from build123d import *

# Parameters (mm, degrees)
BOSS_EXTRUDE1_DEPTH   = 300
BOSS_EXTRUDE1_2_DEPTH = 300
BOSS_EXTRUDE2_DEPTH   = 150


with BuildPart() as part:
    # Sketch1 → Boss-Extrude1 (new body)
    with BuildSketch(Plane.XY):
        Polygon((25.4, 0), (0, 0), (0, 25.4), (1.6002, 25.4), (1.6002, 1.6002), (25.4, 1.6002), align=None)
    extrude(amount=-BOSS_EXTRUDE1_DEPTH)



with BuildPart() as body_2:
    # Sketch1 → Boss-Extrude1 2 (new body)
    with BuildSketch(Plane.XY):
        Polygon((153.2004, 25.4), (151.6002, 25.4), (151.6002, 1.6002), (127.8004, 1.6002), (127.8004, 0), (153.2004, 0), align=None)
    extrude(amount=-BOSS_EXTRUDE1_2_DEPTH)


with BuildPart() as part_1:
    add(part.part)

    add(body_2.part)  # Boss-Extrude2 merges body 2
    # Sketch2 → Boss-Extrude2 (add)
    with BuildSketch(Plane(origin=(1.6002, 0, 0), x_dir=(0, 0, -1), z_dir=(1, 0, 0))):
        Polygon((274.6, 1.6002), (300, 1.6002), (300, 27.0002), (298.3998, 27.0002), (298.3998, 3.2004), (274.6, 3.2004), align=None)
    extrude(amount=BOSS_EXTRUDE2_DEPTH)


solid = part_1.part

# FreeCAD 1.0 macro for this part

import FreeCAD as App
import Part
import Sketcher
from FreeCAD import Vector
Q = App.Units.Quantity

doc = App.newDocument("Part")
params = doc.addObject("Spreadsheet::Sheet", "Params")
for row, (alias, value) in enumerate([
    ("sketch1_width", "1 in"),
    ("sketch1_width2", "0.937 in"),
    ("pad1_length", "300 mm"),
    ("sketch2_width", "1 in"),
    ("sketch2_width2", "0.063 in"),
    ("pad2_length", "300 mm"),
    ("sketch3_width", "1 in"),
    ("sketch3_width2", "0.937 in"),
    ("pad3_length", "150 mm"),
], start=1):
    params.set(f"A{row}", alias)
    params.set(f"B{row}", "=" + value)
    params.setAlias(f"B{row}", alias)

body = doc.addObject("PartDesign::Body", "Body")

# Sketch on XY plane
sketch1 = body.newObject("Sketcher::SketchObject", "Sketch")
sketch1.AttachmentSupport = (doc.getObject("XY_Plane"), [""])
sketch1.MapMode = "FlatFace"
sketch1.addGeometry([
    Part.LineSegment(Vector(0, 0, 0), Vector(25.4, 0, 0)),  # 0
    Part.LineSegment(Vector(25.4, 0, 0), Vector(25.4, 1.6, 0)),  # 1
    Part.LineSegment(Vector(25.4, 1.6, 0), Vector(1.6, 1.6, 0)),  # 2
    Part.LineSegment(Vector(1.6, 1.6, 0), Vector(1.6, 25.4, 0)),  # 3
    Part.LineSegment(Vector(1.6, 25.4, 0), Vector(0, 25.4, 0)),  # 4
    Part.LineSegment(Vector(0, 25.4, 0), Vector(0, 0, 0)),  # 5
], False)
sketch1.addConstraint([
    Sketcher.Constraint("Coincident", 0, 2, 1, 1),
    Sketcher.Constraint("Coincident", 1, 2, 2, 1),
    Sketcher.Constraint("Coincident", 2, 2, 3, 1),
    Sketcher.Constraint("Coincident", 3, 2, 4, 1),
    Sketcher.Constraint("Coincident", 4, 2, 5, 1),
    Sketcher.Constraint("Coincident", 5, 2, 0, 1),
    Sketcher.Constraint("Horizontal", 0),
    Sketcher.Constraint("Vertical", 1),
    Sketcher.Constraint("Horizontal", 2),
    Sketcher.Constraint("Vertical", 3),
    Sketcher.Constraint("Horizontal", 4),
    Sketcher.Constraint("Vertical", 5),
    Sketcher.Constraint("Coincident", 5, 2, -1, 1),
    Sketcher.Constraint("Equal", 4, 1),
    Sketcher.Constraint("Equal", 2, 3),
    Sketcher.Constraint("DistanceX", 0, 1, 0, 2, Q("1 in")),
    Sketcher.Constraint("DistanceX", 2, 2, 2, 1, Q("0.937 in")),
])
sketch1.setExpression("Constraints[15]", "Params.sketch1_width")
sketch1.setExpression("Constraints[16]", "Params.sketch1_width2")
pad1 = body.newObject("PartDesign::Pad", "Pad")
pad1.Profile = sketch1
pad1.setExpression("Length", "Params.pad1_length")
pad1.Reversed = True
body2 = doc.addObject("PartDesign::Body", "Body001")

# Sketch on XY plane
sketch2 = body2.newObject("Sketcher::SketchObject", "Sketch001")
sketch2.AttachmentSupport = (doc.getObject("XY_Plane001"), [""])
sketch2.MapMode = "FlatFace"
sketch2.addGeometry([
    Part.LineSegment(Vector(153.2, 25.4, 0), Vector(151.6, 25.4, 0)),  # 0
    Part.LineSegment(Vector(151.6, 25.4, 0), Vector(151.6, 1.6, 0)),  # 1
    Part.LineSegment(Vector(151.6, 1.6, 0), Vector(127.8, 1.6, 0)),  # 2
    Part.LineSegment(Vector(127.8, 1.6, 0), Vector(127.8, 0, 0)),  # 3
    Part.LineSegment(Vector(127.8, 0, 0), Vector(153.2, 0, 0)),  # 4
    Part.LineSegment(Vector(153.2, 0, 0), Vector(153.2, 25.4, 0)),  # 5
], False)
sketch2.addConstraint([
    Sketcher.Constraint("Coincident", 0, 2, 1, 1),
    Sketcher.Constraint("Coincident", 1, 2, 2, 1),
    Sketcher.Constraint("Coincident", 2, 2, 3, 1),
    Sketcher.Constraint("Coincident", 3, 2, 4, 1),
    Sketcher.Constraint("Coincident", 4, 2, 5, 1),
    Sketcher.Constraint("Coincident", 5, 2, 0, 1),
    Sketcher.Constraint("Horizontal", 0),
    Sketcher.Constraint("Vertical", 1),
    Sketcher.Constraint("Horizontal", 2),
    Sketcher.Constraint("Vertical", 3),
    Sketcher.Constraint("Horizontal", 4),
    Sketcher.Constraint("Vertical", 5),
    Sketcher.Constraint("PointOnObject", 3, 2, -1),
    Sketcher.Constraint("Equal", 2, 1),
    Sketcher.Constraint("Equal", 0, 3),
    Sketcher.Constraint("DistanceX", 4, 1, 4, 2, Q("1 in")),
    Sketcher.Constraint("DistanceX", 0, 2, 0, 1, Q("0.063 in")),
    Sketcher.Constraint("DistanceX", -1, 1, 0, 2, 151.6002),
])
sketch2.setExpression("Constraints[15]", "Params.sketch2_width")
sketch2.setExpression("Constraints[16]", "Params.sketch2_width2")
pad2 = body2.newObject("PartDesign::Pad", "Pad001")
pad2.Profile = sketch2
pad2.setExpression("Length", "Params.pad2_length")
pad2.Reversed = True
body.AllowCompound = True
doc.recompute()

boolean = body.newObject("PartDesign::Boolean", "Boolean")
boolean.Type = "Fuse"
boolean.addObjects([body2])

# Sketch on YZ plane
sketch3 = body.newObject("Sketcher::SketchObject", "Sketch002")
sketch3.AttachmentSupport = (doc.getObject("YZ_Plane"), [""])
sketch3.MapMode = "FlatFace"
sketch3.AttachmentOffset = App.Placement(Vector(0, 0, 0.063 * 25.4), App.Rotation())
sketch3.addGeometry([
    Part.LineSegment(Vector(1.6, -274.6, 0), Vector(1.6, -300, 0)),  # 0
    Part.LineSegment(Vector(1.6, -300, 0), Vector(27, -300, 0)),  # 1
    Part.LineSegment(Vector(27, -300, 0), Vector(27, -298.4, 0)),  # 2
    Part.LineSegment(Vector(27, -298.4, 0), Vector(3.2, -298.4, 0)),  # 3
    Part.LineSegment(Vector(3.2, -298.4, 0), Vector(3.2, -274.6, 0)),  # 4
    Part.LineSegment(Vector(3.2, -274.6, 0), Vector(1.6, -274.6, 0)),  # 5
], False)
sketch3.addConstraint([
    Sketcher.Constraint("Coincident", 0, 2, 1, 1),
    Sketcher.Constraint("Coincident", 1, 2, 2, 1),
    Sketcher.Constraint("Coincident", 2, 2, 3, 1),
    Sketcher.Constraint("Coincident", 3, 2, 4, 1),
    Sketcher.Constraint("Coincident", 4, 2, 5, 1),
    Sketcher.Constraint("Coincident", 5, 2, 0, 1),
    Sketcher.Constraint("Vertical", 0),
    Sketcher.Constraint("Horizontal", 1),
    Sketcher.Constraint("Vertical", 2),
    Sketcher.Constraint("Horizontal", 3),
    Sketcher.Constraint("Vertical", 4),
    Sketcher.Constraint("Horizontal", 5),
    Sketcher.Constraint("Equal", 1, 0),
    Sketcher.Constraint("Equal", 5, 2),
    Sketcher.Constraint("DistanceX", 1, 1, 1, 2, Q("1 in")),
    Sketcher.Constraint("DistanceX", 3, 2, 3, 1, Q("0.937 in")),
    Sketcher.Constraint("DistanceX", -1, 1, 0, 2, Q("0.063 in")),
    Sketcher.Constraint("DistanceY", 0, 2, -1, 1, 300.0),
])
sketch3.setExpression("Constraints[14]", "Params.sketch3_width")
sketch3.setExpression("Constraints[15]", "Params.sketch3_width2")
pad3 = body.newObject("PartDesign::Pad", "Pad002")
pad3.Profile = sketch3
pad3.setExpression("Length", "Params.pad3_length")

doc.recompute()
